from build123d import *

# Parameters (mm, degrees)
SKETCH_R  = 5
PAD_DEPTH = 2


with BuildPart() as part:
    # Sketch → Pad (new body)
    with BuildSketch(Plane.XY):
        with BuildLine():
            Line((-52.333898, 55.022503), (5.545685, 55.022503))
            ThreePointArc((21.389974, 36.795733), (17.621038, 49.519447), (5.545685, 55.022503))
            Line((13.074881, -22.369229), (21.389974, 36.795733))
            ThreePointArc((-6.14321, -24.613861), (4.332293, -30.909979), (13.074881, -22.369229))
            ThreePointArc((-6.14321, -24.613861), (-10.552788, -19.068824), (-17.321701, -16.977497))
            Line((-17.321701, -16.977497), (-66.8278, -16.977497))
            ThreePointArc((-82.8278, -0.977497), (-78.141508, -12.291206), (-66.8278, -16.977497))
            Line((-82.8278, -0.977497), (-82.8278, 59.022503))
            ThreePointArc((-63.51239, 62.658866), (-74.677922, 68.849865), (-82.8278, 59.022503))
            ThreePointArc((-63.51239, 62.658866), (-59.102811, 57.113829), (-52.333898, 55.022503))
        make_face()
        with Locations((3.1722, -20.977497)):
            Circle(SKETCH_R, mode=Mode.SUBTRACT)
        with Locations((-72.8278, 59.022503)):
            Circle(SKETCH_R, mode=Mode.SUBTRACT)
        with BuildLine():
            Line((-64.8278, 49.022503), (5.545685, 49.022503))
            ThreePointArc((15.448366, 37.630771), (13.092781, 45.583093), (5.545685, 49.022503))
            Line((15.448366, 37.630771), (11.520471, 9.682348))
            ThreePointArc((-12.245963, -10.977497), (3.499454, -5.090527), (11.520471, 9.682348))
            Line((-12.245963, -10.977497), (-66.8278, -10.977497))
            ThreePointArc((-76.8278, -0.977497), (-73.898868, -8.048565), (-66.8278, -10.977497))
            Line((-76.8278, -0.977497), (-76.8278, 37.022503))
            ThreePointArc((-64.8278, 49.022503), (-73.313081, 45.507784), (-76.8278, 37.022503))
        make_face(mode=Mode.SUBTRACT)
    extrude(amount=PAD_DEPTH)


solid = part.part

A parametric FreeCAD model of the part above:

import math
import FreeCAD as App
import Part
import Sketcher
from FreeCAD import Vector
Q = App.Units.Quantity

doc = App.newDocument("Part")
params = doc.addObject("Spreadsheet::Sheet", "Params")
for row, (alias, value) in enumerate([
    ("sketch1_diameter", "10 mm"),
    ("sketch1_radius", "12.000001 mm"),
    ("sketch1_radius2", "10 mm"),
    ("sketch1_radius3", "16 mm"),
    ("sketch1_radius4", "24 mm"),
    ("pad1_length", "2 mm"),
], start=1):
    params.set(f"A{row}", alias)
    params.set(f"B{row}", "=" + value)
    params.setAlias(f"B{row}", alias)

body = doc.addObject("PartDesign::Body", "Body")

# Sketch on XY plane
sketch1 = body.newObject("Sketcher::SketchObject", "Sketch")
sketch1.AttachmentSupport = (doc.getObject("XY_Plane"), [""])
sketch1.MapMode = "FlatFace"
sketch1.addGeometry([
    Part.LineSegment(Vector(6, 55, 0), Vector(-52, 55, 0)),  # 0
    Part.ArcOfCircle(Part.Circle(Vector(-52, 67, 0), Vector(0, 0, 1), 12), math.radians(-159), math.radians(-90)),  # 1
    Part.ArcOfCircle(Part.Circle(Vector(-73, 59, 0), Vector(0, 0, 1), 10), math.radians(21), math.radians(180)),  # 2
    Part.LineSegment(Vector(-83, 59, 0), Vector(-83, -1, 0)),  # 3
    Part.ArcOfCircle(Part.Circle(Vector(-67, -1, 0), Vector(0, 0, 1), 16), math.radians(180), math.radians(270)),  # 4
    Part.LineSegment(Vector(-67, -17, 0), Vector(-17, -17, 0)),  # 5
    Part.ArcOfCircle(Part.Circle(Vector(-17, -29, 0), Vector(0, 0, 1), 12), math.radians(21), math.radians(90)),  # 6
    Part.ArcOfCircle(Part.Circle(Vector(3, -21, 0), Vector(0, 0, 1), 10), math.radians(-159), math.radians(-8)),  # 7
    Part.LineSegment(Vector(13, -22, 0), Vector(21, 37, 0)),  # 8
    Part.ArcOfCircle(Part.Circle(Vector(6, 39, 0), Vector(0, 0, 1), 16), math.radians(-8), math.radians(90)),  # 9
    Part.Circle(Vector(3, -21, 0), Vector(0, 0, 1), 5),  # 10
    Part.LineSegment(Vector(-65, 49, 0), Vector(6, 49, 0)),  # 11
    Part.ArcOfCircle(Part.Circle(Vector(6, 39, 0), Vector(0, 0, 1), 10), math.radians(-8), math.radians(90)),  # 12
    Part.LineSegment(Vector(15, 38, 0), Vector(12, 10, 0)),  # 13
    Part.ArcOfCircle(Part.Circle(Vector(-12, 13, 0), Vector(0, 0, 1), 24), math.radians(-90), math.radians(-8)),  # 14
    Part.LineSegment(Vector(-12, -11, 0), Vector(-67, -11, 0)),  # 15
    Part.ArcOfCircle(Part.Circle(Vector(-67, -1, 0), Vector(0, 0, 1), 10), math.radians(180), math.radians(270)),  # 16
    Part.LineSegment(Vector(-77, -1, 0), Vector(-77, 37, 0)),  # 17
    Part.ArcOfCircle(Part.Circle(Vector(-65, 37, 0), Vector(0, 0, 1), 12), math.radians(90), math.radians(180)),  # 18
    Part.Circle(Vector(-73, 59, 0), Vector(0, 0, 1), 5),  # 19
], False)
sketch1.addConstraint([
    Sketcher.Constraint("Tangent", 0, 2, 1, 2),
    Sketcher.Constraint("Tangent", 1, 1, 2, 1),
    Sketcher.Constraint("Tangent", 2, 2, 3, 1),
    Sketcher.Constraint("Tangent", 3, 2, 4, 1),
    Sketcher.Constraint("Tangent", 4, 2, 5, 1),
    Sketcher.Constraint("Tangent", 5, 2, 6, 2),
    Sketcher.Constraint("Tangent", 6, 1, 7, 1),
    Sketcher.Constraint("Tangent", 7, 2, 8, 1),
    Sketcher.Constraint("Tangent", 8, 2, 9, 1),
    Sketcher.Constraint("Tangent", 9, 2, 0, 1),
    Sketcher.Constraint("Tangent", 11, 2, 12, 2),
    Sketcher.Constraint("Tangent", 12, 1, 13, 1),
    Sketcher.Constraint("Tangent", 13, 2, 14, 2),
    Sketcher.Constraint("Tangent", 14, 1, 15, 1),
    Sketcher.Constraint("Tangent", 15, 2, 16, 2),
    Sketcher.Constraint("Tangent", 16, 1, 17, 1),
    Sketcher.Constraint("Tangent", 17, 2, 18, 2),
    Sketcher.Constraint("Tangent", 18, 1, 11, 1),
    Sketcher.Constraint("Horizontal", 0),
    Sketcher.Constraint("Vertical", 3),
    Sketcher.Constraint("Horizontal", 5),
    Sketcher.Constraint("Horizontal", 11),
    Sketcher.Constraint("Horizontal", 15),
    Sketcher.Constraint("Vertical", 17),
    Sketcher.Constraint("Coincident", 10, 3, 7, 3),
    Sketcher.Constraint("Coincident", 12, 3, 9, 3),
    Sketcher.Constraint("Coincident", 16, 3, 4, 3),
    Sketcher.Constraint("Coincident", 19, 3, 2, 3),
    Sketcher.Constraint("Equal", 1, 6),
    Sketcher.Constraint("Equal", 2, 7),
    Sketcher.Constraint("Equal", 4, 9),
    Sketcher.Constraint("Equal", 7, 12),
    Sketcher.Constraint("Equal", 12, 16),
    Sketcher.Constraint("Equal", 6, 18),
    Sketcher.Constraint("Equal", 10, 19),
    Sketcher.Constraint("Parallel", 8, 13),
    Sketcher.Constraint("Diameter", 10, Q("10 mm")),
    Sketcher.Constraint("Radius", 1, Q("12.000001 mm")),
    Sketcher.Constraint("Radius", 2, Q("10 mm")),
    Sketcher.Constraint("Radius", 4, Q("16 mm")),
    Sketcher.Constraint("Radius", 14, Q("24 mm")),
    Sketcher.Constraint("DistanceY", 3, 2, 3, 1, Q("60 mm")),
    Sketcher.Constraint("DistanceY", 17, 1, 17, 2, Q("38 mm")),
    Sketcher.Constraint("Angle", 8, Q("82 deg")),
    Sketcher.Constraint("DistanceY", 6, 3, 7, 3, Q("8 mm")),
    Sketcher.Constraint("DistanceX", 4, 3, 7, 3, Q("70 mm")),
    Sketcher.Constraint("DistanceX", 1, 3, -1, 1, Q("52.333898 mm")),
    Sketcher.Constraint("DistanceY", -1, 1, 18, 3, Q("37.022502 mm")),
])
sketch1.setExpression("Constraints[36]", "Params.sketch1_diameter")
sketch1.setExpression("Constraints[37]", "Params.sketch1_radius")
sketch1.setExpression("Constraints[38]", "Params.sketch1_radius2")
sketch1.setExpression("Constraints[39]", "Params.sketch1_radius3")
sketch1.setExpression("Constraints[40]", "Params.sketch1_radius4")
pad1 = body.newObject("PartDesign::Pad", "Pad")
pad1.Profile = sketch1
pad1.setExpression("Length", "Params.pad1_length")

doc.recompute()
